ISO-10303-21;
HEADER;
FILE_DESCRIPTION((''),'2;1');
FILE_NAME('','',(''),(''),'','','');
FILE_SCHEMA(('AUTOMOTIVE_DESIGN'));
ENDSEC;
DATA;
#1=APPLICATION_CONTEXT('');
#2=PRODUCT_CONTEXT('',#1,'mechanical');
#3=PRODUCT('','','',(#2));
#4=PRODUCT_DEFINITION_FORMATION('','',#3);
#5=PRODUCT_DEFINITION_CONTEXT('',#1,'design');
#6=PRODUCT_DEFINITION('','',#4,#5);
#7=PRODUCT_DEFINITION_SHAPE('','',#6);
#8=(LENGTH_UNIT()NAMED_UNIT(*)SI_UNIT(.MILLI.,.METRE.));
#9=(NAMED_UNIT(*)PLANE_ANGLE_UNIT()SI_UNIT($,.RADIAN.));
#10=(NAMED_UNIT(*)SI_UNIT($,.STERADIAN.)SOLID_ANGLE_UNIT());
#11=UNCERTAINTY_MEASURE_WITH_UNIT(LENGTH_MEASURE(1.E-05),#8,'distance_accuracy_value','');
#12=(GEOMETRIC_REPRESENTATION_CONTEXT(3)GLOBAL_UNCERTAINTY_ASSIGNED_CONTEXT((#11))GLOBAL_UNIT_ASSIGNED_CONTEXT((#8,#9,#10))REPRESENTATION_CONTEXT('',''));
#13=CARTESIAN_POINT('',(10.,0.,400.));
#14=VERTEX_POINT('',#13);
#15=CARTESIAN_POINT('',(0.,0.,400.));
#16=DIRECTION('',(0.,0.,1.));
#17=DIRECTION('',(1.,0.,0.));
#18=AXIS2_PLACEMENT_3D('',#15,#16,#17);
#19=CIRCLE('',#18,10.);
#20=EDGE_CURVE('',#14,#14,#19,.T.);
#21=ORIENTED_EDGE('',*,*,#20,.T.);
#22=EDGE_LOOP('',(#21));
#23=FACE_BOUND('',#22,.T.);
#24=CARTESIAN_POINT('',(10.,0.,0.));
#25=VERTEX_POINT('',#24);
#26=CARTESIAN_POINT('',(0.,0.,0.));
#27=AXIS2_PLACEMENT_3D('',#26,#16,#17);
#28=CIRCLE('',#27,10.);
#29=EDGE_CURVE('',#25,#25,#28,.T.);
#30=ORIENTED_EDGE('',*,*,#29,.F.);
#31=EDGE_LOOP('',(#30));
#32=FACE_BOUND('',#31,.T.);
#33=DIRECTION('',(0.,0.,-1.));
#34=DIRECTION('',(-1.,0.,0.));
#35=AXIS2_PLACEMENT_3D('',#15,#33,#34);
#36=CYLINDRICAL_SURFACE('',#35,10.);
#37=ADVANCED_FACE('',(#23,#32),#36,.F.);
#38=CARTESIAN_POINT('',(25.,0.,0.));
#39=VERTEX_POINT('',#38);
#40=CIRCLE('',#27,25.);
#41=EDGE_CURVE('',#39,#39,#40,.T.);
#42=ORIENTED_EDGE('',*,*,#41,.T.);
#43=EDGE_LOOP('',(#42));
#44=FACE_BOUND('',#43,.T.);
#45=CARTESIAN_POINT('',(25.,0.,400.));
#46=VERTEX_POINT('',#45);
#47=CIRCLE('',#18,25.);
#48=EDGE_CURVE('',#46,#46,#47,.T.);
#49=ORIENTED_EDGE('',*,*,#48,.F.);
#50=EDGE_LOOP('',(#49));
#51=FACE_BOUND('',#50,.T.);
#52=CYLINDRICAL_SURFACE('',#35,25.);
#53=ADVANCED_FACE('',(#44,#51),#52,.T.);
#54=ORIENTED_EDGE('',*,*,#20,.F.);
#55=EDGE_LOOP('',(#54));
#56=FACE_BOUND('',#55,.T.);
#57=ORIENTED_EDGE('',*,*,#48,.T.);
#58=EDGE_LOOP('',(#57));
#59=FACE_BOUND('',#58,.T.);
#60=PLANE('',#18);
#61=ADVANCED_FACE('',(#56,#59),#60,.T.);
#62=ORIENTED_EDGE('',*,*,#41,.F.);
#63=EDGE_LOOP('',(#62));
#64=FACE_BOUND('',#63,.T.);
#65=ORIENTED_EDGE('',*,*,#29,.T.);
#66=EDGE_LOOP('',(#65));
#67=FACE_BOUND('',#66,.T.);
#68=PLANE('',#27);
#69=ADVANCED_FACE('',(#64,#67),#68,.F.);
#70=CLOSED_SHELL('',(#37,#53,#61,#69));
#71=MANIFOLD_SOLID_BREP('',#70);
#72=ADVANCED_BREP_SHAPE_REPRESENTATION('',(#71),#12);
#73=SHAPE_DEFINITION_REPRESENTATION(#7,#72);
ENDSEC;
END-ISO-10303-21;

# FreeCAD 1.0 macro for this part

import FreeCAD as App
import Part
import Sketcher

doc = App.newDocument("Part")
body = doc.addObject("PartDesign::Body", "Body")

# Sketch on XY plane
sketch1 = body.newObject("Sketcher::SketchObject", "Sketch")
sketch1.AttachmentSupport = (doc.getObject("XY_Plane"), [""])
sketch1.MapMode = "FlatFace"
sketch1.addGeometry(Part.Circle(App.Vector(0, 0, 0), App.Vector(0, 0, 1), 25), False)
sketch1.addGeometry(Part.Circle(App.Vector(0, 0, 0), App.Vector(0, 0, 1), 10), False)
sketch1.addConstraint(Sketcher.Constraint("Coincident", 0, 3, -1, 1))
sketch1.addConstraint(Sketcher.Constraint("Coincident", 1, 3, -1, 1))
sketch1.addConstraint(Sketcher.Constraint("Diameter", 0, 50.0))
sketch1.addConstraint(Sketcher.Constraint("Diameter", 1, 20.0))
pad1 = body.newObject("PartDesign::Pad", "Pad")
pad1.Profile = sketch1
pad1.Length = 400

doc.recompute()
